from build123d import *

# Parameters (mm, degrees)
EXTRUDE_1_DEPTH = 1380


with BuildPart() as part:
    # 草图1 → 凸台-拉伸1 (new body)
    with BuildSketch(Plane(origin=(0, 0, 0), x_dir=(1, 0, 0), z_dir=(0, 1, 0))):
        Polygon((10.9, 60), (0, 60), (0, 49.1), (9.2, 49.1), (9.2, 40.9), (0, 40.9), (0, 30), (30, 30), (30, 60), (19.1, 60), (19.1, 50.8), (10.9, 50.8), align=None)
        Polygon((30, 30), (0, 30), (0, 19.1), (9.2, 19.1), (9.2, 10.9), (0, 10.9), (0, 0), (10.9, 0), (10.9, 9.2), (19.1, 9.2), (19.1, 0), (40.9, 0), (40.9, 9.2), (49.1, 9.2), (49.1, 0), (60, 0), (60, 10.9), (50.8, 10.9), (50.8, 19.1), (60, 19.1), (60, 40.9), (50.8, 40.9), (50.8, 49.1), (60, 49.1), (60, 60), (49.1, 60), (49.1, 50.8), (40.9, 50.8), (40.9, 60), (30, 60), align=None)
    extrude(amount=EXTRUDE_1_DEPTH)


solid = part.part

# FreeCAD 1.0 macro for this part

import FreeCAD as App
import Part
import Sketcher
from FreeCAD import Vector
Q = App.Units.Quantity


def add_polygon(sketch, points):
    """Adds a closed chain of lines whose ends are joined by coincident constraints."""
    first, n = sketch.GeometryCount, len(points)
    for a, b in zip(points, points[1:] + points[:1]):
        sketch.addGeometry(Part.LineSegment(App.Vector(*a, 0), App.Vector(*b, 0)), False)
    for i in range(n):
        sketch.addConstraint(Sketcher.Constraint("Coincident", first + i, 2, first + (i + 1) % n, 1))

doc = App.newDocument("Part")
body = doc.addObject("PartDesign::Body", "Body")

sketch1 = doc.addObject("Sketcher::SketchObject", "Sketch")
body.addObject(sketch1)
sketch1.AttachmentSupport = (doc.XZ_Plane, [""])
sketch1.MapMode = "FlatFace"
add_polygon(sketch1, [(11, -60), (0, -60), (0, -49), (9, -49), (9, -41), (0, -41), (0, -19), (9, -19), (9, -11), (0, -11), (0, 0), (11, 0), (11, -9), (19, -9), (19, 0), (41, 0), (41, -9), (49, -9), (49, 0), (60, 0), (60, -11), (51, -11), (51, -19), (60, -19), (60, -41), (51, -41), (51, -49), (60, -49), (60, -60), (49, -60), (49, -51), (41, -51), (41, -60), (19, -60), (19, -51), (11, -51)])
sketch1.addConstraint([
    Sketcher.Constraint("Horizontal", 0),
    Sketcher.Constraint("Vertical", 1),
    Sketcher.Constraint("Horizontal", 2),
    Sketcher.Constraint("Vertical", 3),
    Sketcher.Constraint("Horizontal", 4),
    Sketcher.Constraint("Vertical", 5),
    Sketcher.Constraint("Horizontal", 6),
    Sketcher.Constraint("Vertical", 7),
    Sketcher.Constraint("Horizontal", 8),
    Sketcher.Constraint("Vertical", 9),
    Sketcher.Constraint("Horizontal", 10),
    Sketcher.Constraint("Vertical", 11),
    Sketcher.Constraint("Horizontal", 12),
    Sketcher.Constraint("Vertical", 13),
    Sketcher.Constraint("Horizontal", 14),
    Sketcher.Constraint("Vertical", 15),
    Sketcher.Constraint("Horizontal", 16),
    Sketcher.Constraint("Vertical", 17),
    Sketcher.Constraint("Horizontal", 18),
    Sketcher.Constraint("Vertical", 19),
    Sketcher.Constraint("Horizontal", 20),
    Sketcher.Constraint("Vertical", 21),
    Sketcher.Constraint("Horizontal", 22),
    Sketcher.Constraint("Vertical", 23),
    Sketcher.Constraint("Horizontal", 24),
    Sketcher.Constraint("Vertical", 25),
    Sketcher.Constraint("Horizontal", 26),
    Sketcher.Constraint("Vertical", 27),
    Sketcher.Constraint("Horizontal", 28),
    Sketcher.Constraint("Vertical", 29),
    Sketcher.Constraint("Horizontal", 30),
    Sketcher.Constraint("Vertical", 31),
    Sketcher.Constraint("Horizontal", 32),
    Sketcher.Constraint("Vertical", 33),
    Sketcher.Constraint("Horizontal", 34),
    Sketcher.Constraint("Vertical", 35),
    Sketcher.Constraint("Coincident", 9, 2, -1, 1),
    Sketcher.Constraint("PointOnObject", 0, 2, -2),
    Sketcher.Constraint("PointOnObject", 4, 2, -2),
    Sketcher.Constraint("PointOnObject", 13, 2, -1),
    Sketcher.Constraint("PointOnObject", 17, 2, -1),
    Sketcher.Constraint("Horizontal", 12, 2, 15, 2),
    Sketcher.Constraint("Horizontal", 8, 2, 19, 2),
    Sketcher.Constraint("Horizontal", 6, 2, 21, 2),
    Sketcher.Constraint("Horizontal", 4, 2, 23, 2),
    Sketcher.Constraint("Horizontal", 2, 2, 25, 2),
    Sketcher.Constraint("Horizontal", 0, 2, 27, 2),
    Sketcher.Constraint("Horizontal", 28, 2, 31, 2),
    Sketcher.Constraint("Horizontal", 30, 2, 33, 2),
    Sketcher.Constraint("Vertical", 3, 2, 6, 2),
    Sketcher.Constraint("Vertical", 19, 2, 22, 2),
    Sketcher.Constraint("Vertical", 21, 2, 24, 2),
    Sketcher.Constraint("Vertical", 23, 2, 26, 2),
    Sketcher.Constraint("Vertical", 17, 2, 28, 2),
    Sketcher.Constraint("Vertical", 15, 2, 30, 2),
    Sketcher.Constraint("Vertical", 13, 2, 32, 2),
    Sketcher.Constraint("Vertical", 11, 2, 34, 2),
    Sketcher.Constraint("Equal", 12, 16),
    Sketcher.Constraint("Equal", 10, 18),
    Sketcher.Constraint("Equal", 8, 20),
    Sketcher.Constraint("Equal", 28, 1),
    Sketcher.Constraint("Equal", 34, 3),
    Sketcher.Constraint("Equal", 32, 5),
    Sketcher.Constraint("Equal", 3, 7),
    Sketcher.Constraint("Equal", 1, 9),
    Sketcher.Constraint("Equal", 26, 11),
    Sketcher.Constraint("Equal", 17, 29),
    Sketcher.Constraint("DistanceX", 0, 2, 0, 1, Q("10.9 mm")),
    Sketcher.Constraint("DistanceX", 2, 1, 2, 2, Q("9.2 mm")),
    Sketcher.Constraint("DistanceX", 12, 1, 12, 2, Q("8.2 mm")),
    Sketcher.Constraint("DistanceX", 14, 1, 14, 2, Q("21.8 mm")),
])
pad1 = doc.addObject("PartDesign::Pad", "Pad")
body.addObject(pad1)
pad1.Profile = sketch1
pad1.Length = 1380
pad1.Reversed = True

doc.recompute()
